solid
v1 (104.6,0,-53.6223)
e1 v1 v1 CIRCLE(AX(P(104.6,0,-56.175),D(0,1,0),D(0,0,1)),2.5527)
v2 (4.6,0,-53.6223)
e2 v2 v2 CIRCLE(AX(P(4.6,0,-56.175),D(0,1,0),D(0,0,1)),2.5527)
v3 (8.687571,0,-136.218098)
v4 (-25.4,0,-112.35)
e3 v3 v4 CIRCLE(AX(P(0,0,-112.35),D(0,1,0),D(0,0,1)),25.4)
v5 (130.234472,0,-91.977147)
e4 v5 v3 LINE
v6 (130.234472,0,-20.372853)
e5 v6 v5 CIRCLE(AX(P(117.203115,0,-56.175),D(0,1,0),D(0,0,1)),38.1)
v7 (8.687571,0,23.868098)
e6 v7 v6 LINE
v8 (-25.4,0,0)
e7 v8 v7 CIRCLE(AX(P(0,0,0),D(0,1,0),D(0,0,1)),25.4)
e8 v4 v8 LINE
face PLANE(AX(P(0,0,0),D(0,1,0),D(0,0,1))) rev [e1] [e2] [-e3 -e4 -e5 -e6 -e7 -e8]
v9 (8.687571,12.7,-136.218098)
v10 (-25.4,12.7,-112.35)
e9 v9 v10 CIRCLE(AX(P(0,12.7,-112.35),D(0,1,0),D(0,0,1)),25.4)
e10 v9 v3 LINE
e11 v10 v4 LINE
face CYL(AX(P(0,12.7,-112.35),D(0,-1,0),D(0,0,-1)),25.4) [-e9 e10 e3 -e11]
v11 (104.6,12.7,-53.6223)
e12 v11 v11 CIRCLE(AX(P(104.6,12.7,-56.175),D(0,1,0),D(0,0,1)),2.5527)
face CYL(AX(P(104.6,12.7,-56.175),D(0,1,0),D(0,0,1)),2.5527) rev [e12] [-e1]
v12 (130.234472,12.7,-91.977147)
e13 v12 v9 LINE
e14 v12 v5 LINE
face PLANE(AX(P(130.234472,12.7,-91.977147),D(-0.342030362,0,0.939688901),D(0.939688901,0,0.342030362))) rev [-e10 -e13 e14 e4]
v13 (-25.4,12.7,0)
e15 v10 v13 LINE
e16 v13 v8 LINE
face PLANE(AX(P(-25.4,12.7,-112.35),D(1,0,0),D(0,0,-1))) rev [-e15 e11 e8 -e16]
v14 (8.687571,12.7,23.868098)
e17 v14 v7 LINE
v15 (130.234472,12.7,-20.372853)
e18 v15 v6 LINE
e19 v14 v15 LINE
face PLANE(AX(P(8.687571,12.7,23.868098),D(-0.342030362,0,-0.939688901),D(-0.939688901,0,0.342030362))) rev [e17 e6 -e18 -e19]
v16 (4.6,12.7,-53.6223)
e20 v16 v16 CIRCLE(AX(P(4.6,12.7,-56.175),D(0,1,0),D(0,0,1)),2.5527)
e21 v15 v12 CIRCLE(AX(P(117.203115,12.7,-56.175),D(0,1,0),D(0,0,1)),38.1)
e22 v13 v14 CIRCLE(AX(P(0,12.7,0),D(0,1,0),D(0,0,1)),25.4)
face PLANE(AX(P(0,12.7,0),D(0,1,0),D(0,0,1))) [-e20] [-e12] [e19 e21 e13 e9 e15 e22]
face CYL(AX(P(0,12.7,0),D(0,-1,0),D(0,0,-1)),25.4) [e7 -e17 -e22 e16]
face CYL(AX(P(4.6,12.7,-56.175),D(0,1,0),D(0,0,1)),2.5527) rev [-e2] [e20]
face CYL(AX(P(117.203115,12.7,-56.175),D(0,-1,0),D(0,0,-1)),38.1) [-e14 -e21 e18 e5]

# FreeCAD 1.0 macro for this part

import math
import FreeCAD as App
import Part
import Sketcher

V = App.Vector
Q = App.Units.Quantity

doc = App.newDocument("Part")
params = doc.addObject("Spreadsheet::Sheet", "Params")
for row, (alias, value) in enumerate([
    ("sketch1_radius", "1 in"),
    ("sketch1_radius2", "1.5 in"),
    ("pad1_length", "0.5 in"),
    ("sketch2_diameter", "0.201 in"),
    ("hole_diameter", "0.201 in"),
    ("hole_depth", "0.75 in"),
], start=1):
    params.set(f"A{row}", alias)
    params.set(f"B{row}", "=" + value)
    params.setAlias(f"B{row}", alias)

body = doc.addObject("PartDesign::Body", "Body")

sketch1 = body.newObject("Sketcher::SketchObject", "Sketch")
sketch1.AttachmentSupport = (doc.getObject("XZ_Plane"), [""])
sketch1.MapMode = "FlatFace"
sketch1.addGeometry(Part.LineSegment(V(9, 24, 0), V(130, -20, 0)), False)
sketch1.addGeometry(Part.ArcOfCircle(Part.Circle(V(117, -56, 0), V(0, 0, 1), 38), math.radians(-70), math.radians(70)), False)
sketch1.addGeometry(Part.LineSegment(V(130, -92, 0), V(9, -136, 0)), False)
sketch1.addGeometry(Part.ArcOfCircle(Part.Circle(V(0, -112, 0), V(0, 0, 1), 25), math.radians(180), math.radians(290)), False)
sketch1.addGeometry(Part.LineSegment(V(-25, -112, 0), V(-25, 0, 0)), False)
sketch1.addGeometry(Part.ArcOfCircle(Part.Circle(V(0, 0, 0), V(0, 0, 1), 25), math.radians(70), math.radians(180)), False)
sketch1.addConstraint(Sketcher.Constraint("Tangent", 0, 2, 1, 2))
sketch1.addConstraint(Sketcher.Constraint("Tangent", 1, 1, 2, 1))
sketch1.addConstraint(Sketcher.Constraint("Tangent", 2, 2, 3, 2))
sketch1.addConstraint(Sketcher.Constraint("Tangent", 3, 1, 4, 1))
sketch1.addConstraint(Sketcher.Constraint("Tangent", 4, 2, 5, 2))
sketch1.addConstraint(Sketcher.Constraint("Tangent", 5, 1, 0, 1))
sketch1.addConstraint(Sketcher.Constraint("Vertical", 4))
sketch1.addConstraint(Sketcher.Constraint("Coincident", 5, 3, -1, 1))
sketch1.addConstraint(Sketcher.Constraint("Equal", 3, 5))
sketch1.addConstraint(Sketcher.Constraint("Vertical", 0, 2, 1, 1))
sketch1.addConstraint(Sketcher.Constraint("Radius", 3, Q("1 in")))
sketch1.addConstraint(Sketcher.Constraint("Radius", 1, Q("1.5 in")))
sketch1.addConstraint(Sketcher.Constraint("DistanceY", 4, 1, 4, 2, Q("112.35 mm")))
sketch1.addConstraint(Sketcher.Constraint("DistanceY", 2, 2, -1, 1, Q("136.218098 mm")))
sketch1.setExpression("Constraints[10]", "Params.sketch1_radius")
sketch1.setExpression("Constraints[11]", "Params.sketch1_radius2")
pad1 = body.newObject("PartDesign::Pad", "Pad")
pad1.Profile = sketch1
pad1.setExpression("Length", "Params.pad1_length")
pad1.Reversed = True

sketch2 = body.newObject("Sketcher::SketchObject", "Sketch001")
sketch2.AttachmentSupport = (doc.getObject("XZ_Plane"), [""])
sketch2.MapMode = "FlatFace"
sketch2.AttachmentOffset = App.Placement(V(0, 0, -0.5 * 25.4), App.Rotation())
sketch2.addGeometry(Part.Circle(V(4.6, -56.2, 0), V(0, 0, 1), 2.6), False)
sketch2.addGeometry(Part.Circle(V(104.6, -56.2, 0), V(0, 0, 1), 2.6), False)
sketch2.addConstraint(Sketcher.Constraint("Equal", 0, 1))
sketch2.addConstraint(Sketcher.Constraint("Horizontal", 0, 3, 1, 3))
sketch2.addConstraint(Sketcher.Constraint("Diameter", 0, Q("0.201 in")))
sketch2.addConstraint(Sketcher.Constraint("DistanceX", -1, 1, 0, 3, Q("4.6 mm")))
sketch2.addConstraint(Sketcher.Constraint("DistanceY", 0, 3, -1, 1, Q("56.175 mm")))
sketch2.addConstraint(Sketcher.Constraint("DistanceX", -1, 1, 1, 3, Q("104.6 mm")))
sketch2.setExpression("Constraints[2]", "Params.sketch2_diameter")
doc.recompute()
hole = body.newObject("PartDesign::Hole", "Hole")
hole.Profile = sketch2
hole.ThreadType = "None"
hole.setExpression("Diameter", "Params.hole_diameter")
hole.DepthType = "Dimension"
hole.setExpression("Depth", "Params.hole_depth")
hole.DrillPoint = "Angled"
hole.DrillPointAngle = 118
hole.Reversed = True

doc.recompute()
